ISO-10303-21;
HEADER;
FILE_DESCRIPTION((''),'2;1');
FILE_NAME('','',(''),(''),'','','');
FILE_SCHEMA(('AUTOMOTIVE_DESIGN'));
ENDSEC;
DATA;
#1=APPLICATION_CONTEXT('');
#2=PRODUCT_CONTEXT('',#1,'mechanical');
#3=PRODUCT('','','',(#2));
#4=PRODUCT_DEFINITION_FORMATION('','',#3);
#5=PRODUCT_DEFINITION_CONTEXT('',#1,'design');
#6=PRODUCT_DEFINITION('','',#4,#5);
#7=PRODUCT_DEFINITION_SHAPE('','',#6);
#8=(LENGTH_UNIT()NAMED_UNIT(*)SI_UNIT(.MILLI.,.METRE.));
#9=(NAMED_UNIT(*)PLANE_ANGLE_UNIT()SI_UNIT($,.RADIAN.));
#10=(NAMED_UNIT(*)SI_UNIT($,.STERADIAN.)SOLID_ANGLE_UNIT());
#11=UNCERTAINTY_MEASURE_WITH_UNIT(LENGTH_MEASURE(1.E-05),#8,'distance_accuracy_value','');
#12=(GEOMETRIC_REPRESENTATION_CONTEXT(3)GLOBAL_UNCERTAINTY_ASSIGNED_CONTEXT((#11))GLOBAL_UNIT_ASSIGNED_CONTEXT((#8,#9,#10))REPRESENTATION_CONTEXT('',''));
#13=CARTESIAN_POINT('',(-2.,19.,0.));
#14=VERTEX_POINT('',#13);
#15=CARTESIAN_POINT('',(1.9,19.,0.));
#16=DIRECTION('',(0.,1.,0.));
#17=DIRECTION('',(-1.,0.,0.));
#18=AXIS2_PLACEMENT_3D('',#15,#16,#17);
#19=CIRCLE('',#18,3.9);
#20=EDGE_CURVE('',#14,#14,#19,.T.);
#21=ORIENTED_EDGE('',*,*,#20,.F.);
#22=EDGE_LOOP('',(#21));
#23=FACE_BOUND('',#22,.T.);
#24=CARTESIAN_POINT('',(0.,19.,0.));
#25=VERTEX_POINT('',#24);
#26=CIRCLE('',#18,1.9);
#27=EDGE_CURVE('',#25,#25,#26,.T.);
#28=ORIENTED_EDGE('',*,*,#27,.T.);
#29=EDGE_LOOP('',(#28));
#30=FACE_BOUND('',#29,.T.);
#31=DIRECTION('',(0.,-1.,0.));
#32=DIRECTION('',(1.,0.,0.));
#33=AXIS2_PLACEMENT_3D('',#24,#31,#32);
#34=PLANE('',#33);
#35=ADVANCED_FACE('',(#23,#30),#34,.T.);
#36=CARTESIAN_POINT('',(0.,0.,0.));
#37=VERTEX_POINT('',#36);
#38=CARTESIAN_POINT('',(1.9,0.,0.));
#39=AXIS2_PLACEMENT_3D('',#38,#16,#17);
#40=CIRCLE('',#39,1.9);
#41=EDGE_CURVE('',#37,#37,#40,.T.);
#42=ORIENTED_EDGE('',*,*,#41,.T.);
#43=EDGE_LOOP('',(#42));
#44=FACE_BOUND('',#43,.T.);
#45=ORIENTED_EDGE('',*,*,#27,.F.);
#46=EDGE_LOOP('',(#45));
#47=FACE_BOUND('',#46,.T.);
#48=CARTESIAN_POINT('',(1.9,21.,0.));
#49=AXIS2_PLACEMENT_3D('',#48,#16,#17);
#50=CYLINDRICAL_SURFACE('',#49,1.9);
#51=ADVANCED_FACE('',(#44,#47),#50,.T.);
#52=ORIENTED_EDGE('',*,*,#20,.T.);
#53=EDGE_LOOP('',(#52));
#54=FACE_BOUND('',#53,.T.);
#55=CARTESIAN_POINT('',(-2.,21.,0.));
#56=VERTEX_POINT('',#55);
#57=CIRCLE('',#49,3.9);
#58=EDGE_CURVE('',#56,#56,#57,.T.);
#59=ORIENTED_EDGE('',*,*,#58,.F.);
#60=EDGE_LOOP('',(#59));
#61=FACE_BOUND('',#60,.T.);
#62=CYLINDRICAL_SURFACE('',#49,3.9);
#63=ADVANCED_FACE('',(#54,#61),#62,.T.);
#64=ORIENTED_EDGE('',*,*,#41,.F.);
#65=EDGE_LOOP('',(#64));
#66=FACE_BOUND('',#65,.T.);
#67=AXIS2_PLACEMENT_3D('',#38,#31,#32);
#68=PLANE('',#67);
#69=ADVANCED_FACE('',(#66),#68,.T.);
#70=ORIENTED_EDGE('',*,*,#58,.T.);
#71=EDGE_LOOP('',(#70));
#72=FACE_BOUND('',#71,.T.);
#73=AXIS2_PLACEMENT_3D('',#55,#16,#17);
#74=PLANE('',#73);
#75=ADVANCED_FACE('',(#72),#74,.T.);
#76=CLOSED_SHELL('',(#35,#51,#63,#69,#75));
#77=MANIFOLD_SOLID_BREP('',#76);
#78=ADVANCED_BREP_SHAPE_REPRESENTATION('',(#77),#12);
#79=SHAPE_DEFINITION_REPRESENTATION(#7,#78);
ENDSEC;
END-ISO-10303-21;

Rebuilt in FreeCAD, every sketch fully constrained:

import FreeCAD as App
import Part
import Sketcher

V = App.Vector
Q = App.Units.Quantity

doc = App.newDocument("Part")
body = doc.addObject("PartDesign::Body", "Body")

# Sketch on XY plane
sketch1 = body.newObject("Sketcher::SketchObject", "Sketch")
sketch1.AttachmentSupport = (doc.getObject("XY_Plane"), [""])
sketch1.MapMode = "FlatFace"
sketch1.addGeometry(Part.LineSegment(V(0, 19, 0), V(0, 0, 0)), False)
sketch1.addGeometry(Part.LineSegment(V(0, 0, 0), V(1.9, 0, 0)), False)
sketch1.addGeometry(Part.LineSegment(V(1.9, 0, 0), V(1.9, 21, 0)), False)
sketch1.addGeometry(Part.LineSegment(V(1.9, 21, 0), V(-2, 21, 0)), False)
sketch1.addGeometry(Part.LineSegment(V(-2, 21, 0), V(-2, 19, 0)), False)
sketch1.addGeometry(Part.LineSegment(V(-2, 19, 0), V(0, 19, 0)), False)
sketch1.addGeometry(Part.LineSegment(V(1.9, 21, 0), V(1.9, 0, 0)), True)  # axis
sketch1.addConstraint(Sketcher.Constraint("Coincident", 0, 2, 1, 1))
sketch1.addConstraint(Sketcher.Constraint("Coincident", 1, 2, 2, 1))
sketch1.addConstraint(Sketcher.Constraint("Coincident", 2, 2, 3, 1))
sketch1.addConstraint(Sketcher.Constraint("Coincident", 3, 2, 4, 1))
sketch1.addConstraint(Sketcher.Constraint("Coincident", 4, 2, 5, 1))
sketch1.addConstraint(Sketcher.Constraint("Coincident", 5, 2, 0, 1))
sketch1.addConstraint(Sketcher.Constraint("Vertical", 0))
sketch1.addConstraint(Sketcher.Constraint("Horizontal", 1))
sketch1.addConstraint(Sketcher.Constraint("Vertical", 2))
sketch1.addConstraint(Sketcher.Constraint("Horizontal", 3))
sketch1.addConstraint(Sketcher.Constraint("Vertical", 4))
sketch1.addConstraint(Sketcher.Constraint("Horizontal", 5))
sketch1.addConstraint(Sketcher.Constraint("Vertical", 6))
sketch1.addConstraint(Sketcher.Constraint("Coincident", 0, 2, -1, 1))
sketch1.addConstraint(Sketcher.Constraint("Coincident", 6, 1, 2, 2))
sketch1.addConstraint(Sketcher.Constraint("PointOnObject", 6, 2, -1))
sketch1.addConstraint(Sketcher.Constraint("Equal", 5, 4))
sketch1.addConstraint(Sketcher.Constraint("DistanceX", 5, 1, 5, 2, Q("2 mm")))
sketch1.addConstraint(Sketcher.Constraint("DistanceY", 0, 2, 0, 1, Q("19 mm")))
sketch1.addConstraint(Sketcher.Constraint("DistanceX", 1, 1, 1, 2, Q("1.9 mm")))
revolution = body.newObject("PartDesign::Revolution", "Revolution")
revolution.Profile = sketch1
revolution.ReferenceAxis = (sketch1, ["Axis0"])
revolution.Angle = 360

doc.recompute()
